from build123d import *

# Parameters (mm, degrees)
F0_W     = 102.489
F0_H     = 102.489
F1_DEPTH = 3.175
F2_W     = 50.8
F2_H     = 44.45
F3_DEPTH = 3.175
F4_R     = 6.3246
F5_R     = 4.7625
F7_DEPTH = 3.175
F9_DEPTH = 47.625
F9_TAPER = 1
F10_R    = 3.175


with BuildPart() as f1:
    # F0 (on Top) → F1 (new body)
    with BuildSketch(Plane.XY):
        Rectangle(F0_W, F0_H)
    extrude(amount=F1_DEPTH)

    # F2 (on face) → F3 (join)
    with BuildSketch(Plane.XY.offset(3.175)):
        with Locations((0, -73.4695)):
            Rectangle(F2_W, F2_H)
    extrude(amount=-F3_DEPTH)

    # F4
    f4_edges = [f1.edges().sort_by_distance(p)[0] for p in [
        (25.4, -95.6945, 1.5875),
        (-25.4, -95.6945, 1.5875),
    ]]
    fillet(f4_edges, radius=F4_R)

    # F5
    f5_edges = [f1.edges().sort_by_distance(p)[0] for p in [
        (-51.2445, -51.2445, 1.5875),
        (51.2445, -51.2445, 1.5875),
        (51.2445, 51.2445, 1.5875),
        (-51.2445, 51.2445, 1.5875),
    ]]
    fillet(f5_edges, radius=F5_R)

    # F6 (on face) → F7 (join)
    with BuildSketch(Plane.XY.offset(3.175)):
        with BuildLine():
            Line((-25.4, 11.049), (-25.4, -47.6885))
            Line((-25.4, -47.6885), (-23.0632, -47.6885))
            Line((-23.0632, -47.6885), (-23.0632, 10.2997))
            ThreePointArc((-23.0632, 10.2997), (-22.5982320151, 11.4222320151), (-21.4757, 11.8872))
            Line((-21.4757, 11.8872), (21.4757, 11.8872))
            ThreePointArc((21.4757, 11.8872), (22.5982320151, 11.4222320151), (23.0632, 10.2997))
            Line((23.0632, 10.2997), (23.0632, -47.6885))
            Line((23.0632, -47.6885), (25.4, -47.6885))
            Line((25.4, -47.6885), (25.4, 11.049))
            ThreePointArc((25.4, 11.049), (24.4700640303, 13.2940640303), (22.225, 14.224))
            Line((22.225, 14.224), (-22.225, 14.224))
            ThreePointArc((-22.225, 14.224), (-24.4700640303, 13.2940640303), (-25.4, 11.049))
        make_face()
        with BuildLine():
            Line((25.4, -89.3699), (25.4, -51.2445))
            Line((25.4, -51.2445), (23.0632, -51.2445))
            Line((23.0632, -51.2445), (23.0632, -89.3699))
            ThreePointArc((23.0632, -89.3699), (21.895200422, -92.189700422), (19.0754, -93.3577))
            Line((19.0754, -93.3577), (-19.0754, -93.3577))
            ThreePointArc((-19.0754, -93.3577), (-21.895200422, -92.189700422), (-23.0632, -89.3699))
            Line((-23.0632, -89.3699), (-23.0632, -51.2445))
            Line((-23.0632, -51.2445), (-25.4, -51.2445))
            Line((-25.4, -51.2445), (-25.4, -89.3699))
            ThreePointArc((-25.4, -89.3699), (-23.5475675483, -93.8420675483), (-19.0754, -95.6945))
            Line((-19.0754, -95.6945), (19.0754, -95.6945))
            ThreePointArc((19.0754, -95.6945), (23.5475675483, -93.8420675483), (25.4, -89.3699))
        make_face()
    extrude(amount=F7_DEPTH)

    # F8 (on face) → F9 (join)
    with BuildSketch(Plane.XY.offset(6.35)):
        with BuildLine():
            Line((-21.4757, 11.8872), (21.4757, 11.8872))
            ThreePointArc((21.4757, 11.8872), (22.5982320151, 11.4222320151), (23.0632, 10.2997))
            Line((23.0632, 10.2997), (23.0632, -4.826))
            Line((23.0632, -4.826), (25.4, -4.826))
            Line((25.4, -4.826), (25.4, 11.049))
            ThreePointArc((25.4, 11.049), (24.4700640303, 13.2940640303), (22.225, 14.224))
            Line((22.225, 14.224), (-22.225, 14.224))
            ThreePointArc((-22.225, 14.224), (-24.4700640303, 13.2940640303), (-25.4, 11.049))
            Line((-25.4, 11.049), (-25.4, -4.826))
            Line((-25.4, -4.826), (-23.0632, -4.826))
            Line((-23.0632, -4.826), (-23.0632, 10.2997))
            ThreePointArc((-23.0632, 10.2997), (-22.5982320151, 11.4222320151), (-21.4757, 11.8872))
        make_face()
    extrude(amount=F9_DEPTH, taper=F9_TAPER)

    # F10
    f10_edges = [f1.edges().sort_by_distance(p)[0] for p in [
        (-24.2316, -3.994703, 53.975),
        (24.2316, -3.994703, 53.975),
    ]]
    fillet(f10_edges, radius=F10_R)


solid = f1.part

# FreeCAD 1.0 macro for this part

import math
import FreeCAD as App
import Part
import Sketcher
Q = App.Units.Quantity


def edges_at(feature, points):
    """Names of the edges that pass closest to the given points."""
    edges = feature.Shape.Edges
    near = lambda p: min(range(len(edges)), key=lambda i: edges[i].distToShape(Part.Vertex(*p))[0])
    return sorted({f"Edge{near(p) + 1}" for p in points})

doc = App.newDocument("Part")
body = doc.addObject("PartDesign::Body", "Body")

# Sketch on XY plane
sketch1 = body.newObject("Sketcher::SketchObject", "Sketch")
sketch1.AttachmentSupport = (doc.getObject("XY_Plane"), [""])
sketch1.MapMode = "FlatFace"
sketch1.addGeometry([
    Part.LineSegment(App.Vector(-51, 51, 0), App.Vector(-51, -51, 0)),
    Part.LineSegment(App.Vector(-51, -51, 0), App.Vector(51, -51, 0)),
    Part.LineSegment(App.Vector(51, -51, 0), App.Vector(51, 51, 0)),
    Part.LineSegment(App.Vector(51, 51, 0), App.Vector(-51, 51, 0)),
], False)
sketch1.addConstraint([
    Sketcher.Constraint("Coincident", 0, 2, 1, 1),
    Sketcher.Constraint("Coincident", 1, 2, 2, 1),
    Sketcher.Constraint("Coincident", 2, 2, 3, 1),
    Sketcher.Constraint("Coincident", 3, 2, 0, 1),
    Sketcher.Constraint("Vertical", 0),
    Sketcher.Constraint("Horizontal", 1),
    Sketcher.Constraint("Vertical", 2),
    Sketcher.Constraint("Horizontal", 3),
    Sketcher.Constraint("Symmetric", 0, 2, 2, 2, -1, 1),
    Sketcher.Constraint("Equal", 3, 0),
    Sketcher.Constraint("DistanceX", 1, 1, 1, 2, Q("4.035 in")),
])
pad1 = body.newObject("PartDesign::Pad", "Pad")
pad1.Profile = sketch1
pad1.Length = Q("0.125 in")

# Sketch on XY plane
sketch2 = body.newObject("Sketcher::SketchObject", "Sketch001")
sketch2.AttachmentSupport = (doc.getObject("XY_Plane"), [""])
sketch2.MapMode = "FlatFace"
sketch2.AttachmentOffset = App.Placement(App.Vector(0, 0, 0.125 * 25.4), App.Rotation())
sketch2.addGeometry([
    Part.LineSegment(App.Vector(-25, -51, 0), App.Vector(-25, -96, 0)),
    Part.LineSegment(App.Vector(-25, -96, 0), App.Vector(25, -96, 0)),
    Part.LineSegment(App.Vector(25, -96, 0), App.Vector(25, -51, 0)),
    Part.LineSegment(App.Vector(25, -51, 0), App.Vector(-25, -51, 0)),
], False)
sketch2.addConstraint([
    Sketcher.Constraint("Coincident", 0, 2, 1, 1),
    Sketcher.Constraint("Coincident", 1, 2, 2, 1),
    Sketcher.Constraint("Coincident", 2, 2, 3, 1),
    Sketcher.Constraint("Coincident", 3, 2, 0, 1),
    Sketcher.Constraint("Vertical", 0),
    Sketcher.Constraint("Horizontal", 1),
    Sketcher.Constraint("Vertical", 2),
    Sketcher.Constraint("Horizontal", 3),
    Sketcher.Constraint("DistanceX", 1, 1, 1, 2, Q("2 in")),
    Sketcher.Constraint("DistanceX", 0, 2, -1, 1, Q("1 in")),
    Sketcher.Constraint("DistanceY", 0, 2, 0, 1, Q("1.75 in")),
    Sketcher.Constraint("DistanceY", 0, 2, -1, 1, Q("3.7675 in")),
])
pad2 = body.newObject("PartDesign::Pad", "Pad001")
pad2.Profile = sketch2
pad2.Length = Q("0.125 in")
pad2.Reversed = True
doc.recompute()

fillet = body.newObject("PartDesign::Fillet", "Fillet")
fillet.Base = (pad2, edges_at(pad2, [(25.4, -95.695, 1.587), (-25.4, -95.695, 1.587)]))
fillet.Radius = Q("0.249 in")
doc.recompute()

fillet2 = body.newObject("PartDesign::Fillet", "Fillet001")
fillet2.Base = (fillet, edges_at(fillet, [
    (-51.245, -51.245, 1.587),
    (51.245, -51.245, 1.587),
    (51.245, 51.245, 1.587),
    (-51.245, 51.245, 1.587),
]))
fillet2.Radius = Q("0.1875 in")

# Sketch on XY plane
sketch3 = body.newObject("Sketcher::SketchObject", "Sketch002")
sketch3.AttachmentSupport = (doc.getObject("XY_Plane"), [""])
sketch3.MapMode = "FlatFace"
sketch3.AttachmentOffset = App.Placement(App.Vector(0, 0, 0.125 * 25.4), App.Rotation())
sketch3.addGeometry([
    Part.LineSegment(App.Vector(-25.4, 11, 0), App.Vector(-25.4, -47.7, 0)),  # 0
    Part.LineSegment(App.Vector(-25.4, -47.7, 0), App.Vector(-23.1, -47.7, 0)),  # 1
    Part.LineSegment(App.Vector(-23.1, -47.7, 0), App.Vector(-23.1, 10.3, 0)),  # 2
    Part.ArcOfCircle(Part.Circle(App.Vector(-21.5, 10.3, 0), App.Vector(0, 0, 1), 1.6), math.radians(90), math.radians(180)),  # 3
    Part.LineSegment(App.Vector(-21.5, 11.9, 0), App.Vector(21.5, 11.9, 0)),  # 4
    Part.ArcOfCircle(Part.Circle(App.Vector(21.5, 10.3, 0), App.Vector(0, 0, 1), 1.6), math.radians(0), math.radians(90)),  # 5
    Part.LineSegment(App.Vector(23.1, 10.3, 0), App.Vector(23.1, -47.7, 0)),  # 6
    Part.LineSegment(App.Vector(23.1, -47.7, 0), App.Vector(25.4, -47.7, 0)),  # 7
    Part.LineSegment(App.Vector(25.4, -47.7, 0), App.Vector(25.4, 11, 0)),  # 8
    Part.ArcOfCircle(Part.Circle(App.Vector(22.2, 11, 0), App.Vector(0, 0, 1), 3.2), math.radians(0), math.radians(90)),  # 9
    Part.LineSegment(App.Vector(22.2, 14.2, 0), App.Vector(-22.2, 14.2, 0)),  # 10
    Part.ArcOfCircle(Part.Circle(App.Vector(-22.2, 11, 0), App.Vector(0, 0, 1), 3.2), math.radians(90), math.radians(180)),  # 11
    Part.LineSegment(App.Vector(25.4, -89.4, 0), App.Vector(25.4, -51.2, 0)),  # 12
    Part.LineSegment(App.Vector(25.4, -51.2, 0), App.Vector(23.1, -51.2, 0)),  # 13
    Part.LineSegment(App.Vector(23.1, -51.2, 0), App.Vector(23.1, -89.4, 0)),  # 14
    Part.ArcOfCircle(Part.Circle(App.Vector(19.1, -89.4, 0), App.Vector(0, 0, 1), 4), math.radians(-90), math.radians(0)),  # 15
    Part.LineSegment(App.Vector(19.1, -93.4, 0), App.Vector(-19.1, -93.4, 0)),  # 16
    Part.ArcOfCircle(Part.Circle(App.Vector(-19.1, -89.4, 0), App.Vector(0, 0, 1), 4), math.radians(180), math.radians(270)),  # 17
    Part.LineSegment(App.Vector(-23.1, -89.4, 0), App.Vector(-23.1, -51.2, 0)),  # 18
    Part.LineSegment(App.Vector(-23.1, -51.2, 0), App.Vector(-25.4, -51.2, 0)),  # 19
    Part.LineSegment(App.Vector(-25.4, -51.2, 0), App.Vector(-25.4, -89.4, 0)),  # 20
    Part.ArcOfCircle(Part.Circle(App.Vector(-19.1, -89.4, 0), App.Vector(0, 0, 1), 6.3), math.radians(180), math.radians(270)),  # 21
    Part.LineSegment(App.Vector(-19.1, -95.7, 0), App.Vector(19.1, -95.7, 0)),  # 22
    Part.ArcOfCircle(Part.Circle(App.Vector(19.1, -89.4, 0), App.Vector(0, 0, 1), 6.3), math.radians(-90), math.radians(0)),  # 23
], False)
sketch3.addConstraint([
    Sketcher.Constraint("Coincident", 0, 2, 1, 1),
    Sketcher.Constraint("Coincident", 1, 2, 2, 1),
    Sketcher.Constraint("Tangent", 2, 2, 3, 2),
    Sketcher.Constraint("Tangent", 3, 1, 4, 1),
    Sketcher.Constraint("Tangent", 4, 2, 5, 2),
    Sketcher.Constraint("Tangent", 5, 1, 6, 1),
    Sketcher.Constraint("Coincident", 6, 2, 7, 1),
    Sketcher.Constraint("Coincident", 7, 2, 8, 1),
    Sketcher.Constraint("Tangent", 8, 2, 9, 1),
    Sketcher.Constraint("Tangent", 9, 2, 10, 1),
    Sketcher.Constraint("Tangent", 10, 2, 11, 1),
    Sketcher.Constraint("Tangent", 11, 2, 0, 1),
    Sketcher.Constraint("Coincident", 12, 2, 13, 1),
    Sketcher.Constraint("Coincident", 13, 2, 14, 1),
    Sketcher.Constraint("Tangent", 14, 2, 15, 2),
    Sketcher.Constraint("Tangent", 15, 1, 16, 1),
    Sketcher.Constraint("Tangent", 16, 2, 17, 2),
    Sketcher.Constraint("Tangent", 17, 1, 18, 1),
    Sketcher.Constraint("Coincident", 18, 2, 19, 1),
    Sketcher.Constraint("Coincident", 19, 2, 20, 1),
    Sketcher.Constraint("Tangent", 20, 2, 21, 1),
    Sketcher.Constraint("Tangent", 21, 2, 22, 1),
    Sketcher.Constraint("Tangent", 22, 2, 23, 1),
    Sketcher.Constraint("Tangent", 23, 2, 12, 1),
    Sketcher.Constraint("Vertical", 0),
    Sketcher.Constraint("Horizontal", 1),
    Sketcher.Constraint("Vertical", 2),
    Sketcher.Constraint("Horizontal", 4),
    Sketcher.Constraint("Vertical", 6),
    Sketcher.Constraint("Horizontal", 7),
    Sketcher.Constraint("Vertical", 8),
    Sketcher.Constraint("Horizontal", 10),
    Sketcher.Constraint("Vertical", 12),
    Sketcher.Constraint("Horizontal", 13),
    Sketcher.Constraint("Vertical", 14),
    Sketcher.Constraint("Horizontal", 16),
    Sketcher.Constraint("Vertical", 18),
    Sketcher.Constraint("Horizontal", 19),
    Sketcher.Constraint("Vertical", 20),
    Sketcher.Constraint("Horizontal", 22),
    Sketcher.Constraint("Coincident", 21, 3, 17, 3),
    Sketcher.Constraint("Coincident", 23, 3, 15, 3),
    Sketcher.Constraint("Equal", 3, 5),
    Sketcher.Constraint("Equal", 9, 11),
    Sketcher.Constraint("Equal", 15, 17),
    Sketcher.Constraint("Symmetric", 1, 2, 6, 2, -2),
    Sketcher.Constraint("Symmetric", 13, 2, 18, 2, -2),
    Sketcher.Constraint("Vertical", 8, 2, 12, 2),
    Sketcher.Constraint("Vertical", 6, 2, 13, 2),
    Sketcher.Constraint("Vertical", 11, 2, 19, 2),
    Sketcher.Constraint("DistanceX", 0, 2, -1, 1, Q("1 in")),
    Sketcher.Constraint("Radius", 3, Q("0.0625 in")),
    Sketcher.Constraint("Radius", 9, Q("0.125 in")),
    Sketcher.Constraint("Radius", 15, Q("0.157 in")),
    Sketcher.Constraint("Radius", 21, Q("0.249 in")),
    Sketcher.Constraint("DistanceY", 0, 2, 0, 1, Q("2.3125 in")),
    Sketcher.Constraint("DistanceY", 2, 1, 2, 2, Q("2.283 in")),
    Sketcher.Constraint("DistanceY", 12, 1, 12, 2, Q("1.501 in")),
    Sketcher.Constraint("DistanceY", -1, 1, 9, 2, Q("0.56 in")),
    Sketcher.Constraint("DistanceY", 12, 2, 7, 2, Q("0.14 in")),
])
pad3 = body.newObject("PartDesign::Pad", "Pad002")
pad3.Profile = sketch3
pad3.Length = Q("0.125 in")

# Sketch on XY plane
sketch4 = body.newObject("Sketcher::SketchObject", "Sketch003")
sketch4.AttachmentSupport = (doc.getObject("XY_Plane"), [""])
sketch4.MapMode = "FlatFace"
sketch4.AttachmentOffset = App.Placement(App.Vector(0, 0, 0.25 * 25.4), App.Rotation())
sketch4.addGeometry([
    Part.LineSegment(App.Vector(-21.5, 11.9, 0), App.Vector(21.5, 11.9, 0)),  # 0
    Part.ArcOfCircle(Part.Circle(App.Vector(21.5, 10.3, 0), App.Vector(0, 0, 1), 1.6), math.radians(0), math.radians(90)),  # 1
    Part.LineSegment(App.Vector(23.1, 10.3, 0), App.Vector(23.1, -4.8, 0)),  # 2
    Part.LineSegment(App.Vector(23.1, -4.8, 0), App.Vector(25.4, -4.8, 0)),  # 3
    Part.LineSegment(App.Vector(25.4, -4.8, 0), App.Vector(25.4, 11, 0)),  # 4
    Part.ArcOfCircle(Part.Circle(App.Vector(22.2, 11, 0), App.Vector(0, 0, 1), 3.2), math.radians(0), math.radians(90)),  # 5
    Part.LineSegment(App.Vector(22.2, 14.2, 0), App.Vector(-22.2, 14.2, 0)),  # 6
    Part.ArcOfCircle(Part.Circle(App.Vector(-22.2, 11, 0), App.Vector(0, 0, 1), 3.2), math.radians(90), math.radians(180)),  # 7
    Part.LineSegment(App.Vector(-25.4, 11, 0), App.Vector(-25.4, -4.8, 0)),  # 8
    Part.LineSegment(App.Vector(-25.4, -4.8, 0), App.Vector(-23.1, -4.8, 0)),  # 9
    Part.LineSegment(App.Vector(-23.1, -4.8, 0), App.Vector(-23.1, 10.3, 0)),  # 10
    Part.ArcOfCircle(Part.Circle(App.Vector(-21.5, 10.3, 0), App.Vector(0, 0, 1), 1.6), math.radians(90), math.radians(180)),  # 11
], False)
sketch4.addConstraint([
    Sketcher.Constraint("Tangent", 0, 2, 1, 2),
    Sketcher.Constraint("Tangent", 1, 1, 2, 1),
    Sketcher.Constraint("Coincident", 2, 2, 3, 1),
    Sketcher.Constraint("Coincident", 3, 2, 4, 1),
    Sketcher.Constraint("Tangent", 4, 2, 5, 1),
    Sketcher.Constraint("Tangent", 5, 2, 6, 1),
    Sketcher.Constraint("Tangent", 6, 2, 7, 1),
    Sketcher.Constraint("Tangent", 7, 2, 8, 1),
    Sketcher.Constraint("Coincident", 8, 2, 9, 1),
    Sketcher.Constraint("Coincident", 9, 2, 10, 1),
    Sketcher.Constraint("Tangent", 10, 2, 11, 2),
    Sketcher.Constraint("Tangent", 11, 1, 0, 1),
    Sketcher.Constraint("Horizontal", 0),
    Sketcher.Constraint("Vertical", 2),
    Sketcher.Constraint("Horizontal", 3),
    Sketcher.Constraint("Vertical", 4),
    Sketcher.Constraint("Horizontal", 6),
    Sketcher.Constraint("Vertical", 8),
    Sketcher.Constraint("Horizontal", 9),
    Sketcher.Constraint("Vertical", 10),
    Sketcher.Constraint("Equal", 5, 7),
    Sketcher.Constraint("Equal", 1, 11),
    Sketcher.Constraint("Symmetric", 3, 2, 8, 2, -2),
    Sketcher.Constraint("Equal", 3, 9),
    Sketcher.Constraint("DistanceX", -1, 1, 3, 2, Q("1 in")),
    Sketcher.Constraint("Radius", 1, Q("0.0625 in")),
    Sketcher.Constraint("Radius", 5, Q("0.125 in")),
    Sketcher.Constraint("DistanceX", 0, 1, 0, 2, Q("1.691 in")),
    Sketcher.Constraint("DistanceY", 4, 1, 4, 2, Q("0.625 in")),
    Sketcher.Constraint("DistanceY", 2, 2, -1, 1, Q("0.19 in")),
    Sketcher.Constraint("DistanceY", 2, 2, 2, 1, Q("0.5955 in")),
])
pad4 = body.newObject("PartDesign::Pad", "Pad003")
pad4.Profile = sketch4
pad4.Length = Q("1.875 in")
pad4.TaperAngle = -1
doc.recompute()

fillet3 = body.newObject("PartDesign::Fillet", "Fillet002")
fillet3.Base = (pad4, edges_at(pad4, [(-24.232, -3.995, 53.975), (24.232, -3.995, 53.975)]))
fillet3.Radius = Q("0.125 in")

doc.recompute()
